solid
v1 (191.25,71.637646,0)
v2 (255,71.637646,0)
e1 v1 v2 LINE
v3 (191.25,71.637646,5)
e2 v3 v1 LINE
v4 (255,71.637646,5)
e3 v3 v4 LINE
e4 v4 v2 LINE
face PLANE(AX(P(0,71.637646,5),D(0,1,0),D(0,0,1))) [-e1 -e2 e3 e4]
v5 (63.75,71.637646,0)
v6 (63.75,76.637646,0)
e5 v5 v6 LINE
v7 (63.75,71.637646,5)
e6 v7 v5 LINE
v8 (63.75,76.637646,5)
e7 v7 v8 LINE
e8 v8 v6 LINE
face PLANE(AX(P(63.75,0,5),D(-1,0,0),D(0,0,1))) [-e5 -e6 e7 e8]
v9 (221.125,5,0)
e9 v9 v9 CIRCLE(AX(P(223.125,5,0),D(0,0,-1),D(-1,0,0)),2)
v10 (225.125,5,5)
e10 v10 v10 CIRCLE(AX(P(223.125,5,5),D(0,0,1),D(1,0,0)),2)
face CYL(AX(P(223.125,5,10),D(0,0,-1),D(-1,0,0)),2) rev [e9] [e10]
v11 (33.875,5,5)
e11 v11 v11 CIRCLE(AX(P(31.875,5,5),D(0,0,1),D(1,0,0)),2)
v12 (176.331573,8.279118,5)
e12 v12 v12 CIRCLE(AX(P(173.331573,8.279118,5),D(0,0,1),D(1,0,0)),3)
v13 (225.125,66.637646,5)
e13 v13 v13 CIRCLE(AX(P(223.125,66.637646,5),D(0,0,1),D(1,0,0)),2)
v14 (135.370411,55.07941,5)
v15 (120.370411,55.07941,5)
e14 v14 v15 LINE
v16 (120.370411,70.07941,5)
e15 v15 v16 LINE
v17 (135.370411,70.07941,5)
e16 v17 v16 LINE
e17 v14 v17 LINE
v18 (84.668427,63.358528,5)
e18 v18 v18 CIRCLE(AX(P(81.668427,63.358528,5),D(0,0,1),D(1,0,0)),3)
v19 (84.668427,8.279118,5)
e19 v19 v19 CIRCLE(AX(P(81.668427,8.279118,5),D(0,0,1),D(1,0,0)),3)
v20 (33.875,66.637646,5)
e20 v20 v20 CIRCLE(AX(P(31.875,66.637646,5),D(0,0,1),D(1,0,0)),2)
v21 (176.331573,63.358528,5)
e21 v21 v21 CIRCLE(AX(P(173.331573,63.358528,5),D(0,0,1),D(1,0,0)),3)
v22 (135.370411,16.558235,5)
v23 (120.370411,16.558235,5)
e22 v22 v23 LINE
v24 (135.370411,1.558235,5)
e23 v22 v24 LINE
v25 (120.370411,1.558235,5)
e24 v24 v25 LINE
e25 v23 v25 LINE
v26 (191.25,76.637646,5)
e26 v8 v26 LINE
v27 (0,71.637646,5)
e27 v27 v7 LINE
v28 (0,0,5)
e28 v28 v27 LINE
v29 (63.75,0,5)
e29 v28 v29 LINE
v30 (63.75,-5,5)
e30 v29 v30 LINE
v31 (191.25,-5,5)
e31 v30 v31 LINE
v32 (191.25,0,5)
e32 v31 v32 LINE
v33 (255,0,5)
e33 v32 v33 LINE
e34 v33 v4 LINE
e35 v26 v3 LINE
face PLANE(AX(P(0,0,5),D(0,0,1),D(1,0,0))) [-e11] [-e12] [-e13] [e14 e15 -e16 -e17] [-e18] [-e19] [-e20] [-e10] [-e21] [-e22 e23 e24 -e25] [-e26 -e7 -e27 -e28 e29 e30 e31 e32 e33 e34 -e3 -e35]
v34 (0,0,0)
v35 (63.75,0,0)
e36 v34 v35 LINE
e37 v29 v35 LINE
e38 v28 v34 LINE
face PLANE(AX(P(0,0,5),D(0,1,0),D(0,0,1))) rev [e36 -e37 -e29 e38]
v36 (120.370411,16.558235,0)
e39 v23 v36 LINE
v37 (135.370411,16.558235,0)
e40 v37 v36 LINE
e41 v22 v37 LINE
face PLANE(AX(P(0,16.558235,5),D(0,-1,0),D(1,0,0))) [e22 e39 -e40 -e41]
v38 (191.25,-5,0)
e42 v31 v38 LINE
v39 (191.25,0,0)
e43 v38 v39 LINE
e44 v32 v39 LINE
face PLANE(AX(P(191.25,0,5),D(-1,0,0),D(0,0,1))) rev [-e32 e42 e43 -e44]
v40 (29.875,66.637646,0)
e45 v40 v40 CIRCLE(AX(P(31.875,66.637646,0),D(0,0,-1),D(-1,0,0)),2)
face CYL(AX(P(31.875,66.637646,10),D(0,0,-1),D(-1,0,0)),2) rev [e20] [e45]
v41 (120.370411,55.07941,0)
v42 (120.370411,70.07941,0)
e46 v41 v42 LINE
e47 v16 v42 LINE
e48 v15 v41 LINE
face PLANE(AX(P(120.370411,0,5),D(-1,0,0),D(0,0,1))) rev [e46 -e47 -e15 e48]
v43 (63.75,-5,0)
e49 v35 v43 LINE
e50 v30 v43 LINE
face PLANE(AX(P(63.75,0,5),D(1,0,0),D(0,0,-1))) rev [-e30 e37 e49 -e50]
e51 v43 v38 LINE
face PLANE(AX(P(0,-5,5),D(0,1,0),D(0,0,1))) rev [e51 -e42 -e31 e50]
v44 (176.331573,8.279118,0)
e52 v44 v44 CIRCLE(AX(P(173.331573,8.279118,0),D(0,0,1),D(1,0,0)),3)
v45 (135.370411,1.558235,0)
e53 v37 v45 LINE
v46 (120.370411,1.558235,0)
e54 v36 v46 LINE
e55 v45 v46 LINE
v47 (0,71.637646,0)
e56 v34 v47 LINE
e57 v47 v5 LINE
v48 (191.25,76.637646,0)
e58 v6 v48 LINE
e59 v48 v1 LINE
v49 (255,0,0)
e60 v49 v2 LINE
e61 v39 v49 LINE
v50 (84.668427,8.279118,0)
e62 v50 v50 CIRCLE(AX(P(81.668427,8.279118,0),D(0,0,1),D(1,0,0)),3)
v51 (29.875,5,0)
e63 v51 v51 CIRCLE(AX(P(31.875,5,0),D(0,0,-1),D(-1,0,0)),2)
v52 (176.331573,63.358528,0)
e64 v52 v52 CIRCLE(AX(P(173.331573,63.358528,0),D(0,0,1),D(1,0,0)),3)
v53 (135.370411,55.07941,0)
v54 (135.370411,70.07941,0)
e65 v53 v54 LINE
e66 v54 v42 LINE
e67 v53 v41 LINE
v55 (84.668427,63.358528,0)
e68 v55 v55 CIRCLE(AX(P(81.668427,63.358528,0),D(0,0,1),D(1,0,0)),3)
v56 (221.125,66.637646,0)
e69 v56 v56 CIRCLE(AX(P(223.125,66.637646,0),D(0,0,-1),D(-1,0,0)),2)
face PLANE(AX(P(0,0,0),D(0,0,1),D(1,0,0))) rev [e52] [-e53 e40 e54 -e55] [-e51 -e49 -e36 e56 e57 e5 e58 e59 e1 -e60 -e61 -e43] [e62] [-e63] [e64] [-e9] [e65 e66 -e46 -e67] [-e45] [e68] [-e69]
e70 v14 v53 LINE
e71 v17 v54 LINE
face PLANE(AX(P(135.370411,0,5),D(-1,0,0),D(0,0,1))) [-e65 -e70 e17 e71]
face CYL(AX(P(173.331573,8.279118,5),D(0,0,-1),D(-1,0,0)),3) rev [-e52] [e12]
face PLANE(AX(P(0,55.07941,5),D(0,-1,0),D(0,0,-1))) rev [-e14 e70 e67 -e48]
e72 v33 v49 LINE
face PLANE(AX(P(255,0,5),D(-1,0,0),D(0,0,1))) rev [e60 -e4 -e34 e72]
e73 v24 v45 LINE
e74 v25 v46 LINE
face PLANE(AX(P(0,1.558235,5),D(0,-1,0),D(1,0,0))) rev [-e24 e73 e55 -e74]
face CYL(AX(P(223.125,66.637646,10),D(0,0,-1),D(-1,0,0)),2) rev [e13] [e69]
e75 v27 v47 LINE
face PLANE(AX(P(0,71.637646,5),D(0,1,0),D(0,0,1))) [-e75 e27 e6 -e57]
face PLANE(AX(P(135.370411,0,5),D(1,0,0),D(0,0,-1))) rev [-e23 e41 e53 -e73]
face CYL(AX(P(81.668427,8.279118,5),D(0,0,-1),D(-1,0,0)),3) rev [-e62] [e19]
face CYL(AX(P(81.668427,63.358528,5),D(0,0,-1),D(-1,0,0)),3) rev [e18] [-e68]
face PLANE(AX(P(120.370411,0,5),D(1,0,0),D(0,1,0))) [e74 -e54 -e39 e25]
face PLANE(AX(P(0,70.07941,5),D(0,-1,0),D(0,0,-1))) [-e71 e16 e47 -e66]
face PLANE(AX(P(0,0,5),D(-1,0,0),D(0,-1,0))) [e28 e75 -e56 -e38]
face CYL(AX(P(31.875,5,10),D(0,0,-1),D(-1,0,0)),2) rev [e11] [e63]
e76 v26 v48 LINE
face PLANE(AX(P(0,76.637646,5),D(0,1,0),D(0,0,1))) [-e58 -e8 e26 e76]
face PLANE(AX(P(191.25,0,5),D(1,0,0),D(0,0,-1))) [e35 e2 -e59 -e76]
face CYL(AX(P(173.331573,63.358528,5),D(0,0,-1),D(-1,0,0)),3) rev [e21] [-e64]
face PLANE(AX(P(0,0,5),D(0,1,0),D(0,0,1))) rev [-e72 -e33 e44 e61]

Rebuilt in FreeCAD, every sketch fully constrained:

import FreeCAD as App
import Part
import Sketcher
from FreeCAD import Vector

doc = App.newDocument("Part")
body = doc.addObject("PartDesign::Body", "Body")

sketch1 = doc.addObject("Sketcher::SketchObject", "Sketch")
body.addObject(sketch1)
sketch1.AttachmentSupport = (doc.XY_Plane, [""])
sketch1.MapMode = "FlatFace"
sketch1.addGeometry([
    Part.LineSegment(Vector(255, 71.6, 0), Vector(191.2, 71.6, 0)),
    Part.LineSegment(Vector(191.2, 71.6, 0), Vector(191.2, 76.6, 0)),
    Part.LineSegment(Vector(191.2, 76.6, 0), Vector(63.8, 76.6, 0)),
    Part.LineSegment(Vector(63.8, 76.6, 0), Vector(63.8, 71.6, 0)),
    Part.LineSegment(Vector(63.8, 71.6, 0), Vector(0, 71.6, 0)),
    Part.LineSegment(Vector(0, 71.6, 0), Vector(0, 0, 0)),
    Part.LineSegment(Vector(0, 0, 0), Vector(63.8, 0, 0)),
    Part.LineSegment(Vector(63.8, 0, 0), Vector(63.8, -5, 0)),
    Part.LineSegment(Vector(63.8, -5, 0), Vector(191.2, -5, 0)),
    Part.LineSegment(Vector(191.2, -5, 0), Vector(191.2, 0, 0)),
    Part.LineSegment(Vector(191.2, 0, 0), Vector(255, 0, 0)),
    Part.LineSegment(Vector(255, 0, 0), Vector(255, 71.6, 0)),
    Part.Circle(Vector(173.3, 8.3, 0), Vector(0, 0, 1), 3),
    Part.LineSegment(Vector(120.4, 1.6, 0), Vector(120.4, 16.6, 0)),
    Part.LineSegment(Vector(120.4, 16.6, 0), Vector(135.4, 16.6, 0)),
    Part.LineSegment(Vector(135.4, 16.6, 0), Vector(135.4, 1.6, 0)),
    Part.LineSegment(Vector(135.4, 1.6, 0), Vector(120.4, 1.6, 0)),
    Part.Circle(Vector(81.7, 8.3, 0), Vector(0, 0, 1), 3),
    Part.Circle(Vector(173.3, 63.4, 0), Vector(0, 0, 1), 3),
    Part.LineSegment(Vector(120.4, 55.1, 0), Vector(120.4, 70.1, 0)),
    Part.LineSegment(Vector(120.4, 70.1, 0), Vector(135.4, 70.1, 0)),
    Part.LineSegment(Vector(135.4, 70.1, 0), Vector(135.4, 55.1, 0)),
    Part.LineSegment(Vector(135.4, 55.1, 0), Vector(120.4, 55.1, 0)),
    Part.Circle(Vector(81.7, 63.4, 0), Vector(0, 0, 1), 3),
], False)
sketch1.addConstraint([
    Sketcher.Constraint("Coincident", 0, 2, 1, 1),
    Sketcher.Constraint("Coincident", 1, 2, 2, 1),
    Sketcher.Constraint("Coincident", 2, 2, 3, 1),
    Sketcher.Constraint("Coincident", 3, 2, 4, 1),
    Sketcher.Constraint("Coincident", 4, 2, 5, 1),
    Sketcher.Constraint("Coincident", 5, 2, 6, 1),
    Sketcher.Constraint("Coincident", 6, 2, 7, 1),
    Sketcher.Constraint("Coincident", 7, 2, 8, 1),
    Sketcher.Constraint("Coincident", 8, 2, 9, 1),
    Sketcher.Constraint("Coincident", 9, 2, 10, 1),
    Sketcher.Constraint("Coincident", 10, 2, 11, 1),
    Sketcher.Constraint("Coincident", 11, 2, 0, 1),
    Sketcher.Constraint("Coincident", 13, 2, 14, 1),
    Sketcher.Constraint("Coincident", 14, 2, 15, 1),
    Sketcher.Constraint("Coincident", 15, 2, 16, 1),
    Sketcher.Constraint("Coincident", 16, 2, 13, 1),
    Sketcher.Constraint("Coincident", 19, 2, 20, 1),
    Sketcher.Constraint("Coincident", 20, 2, 21, 1),
    Sketcher.Constraint("Coincident", 21, 2, 22, 1),
    Sketcher.Constraint("Coincident", 22, 2, 19, 1),
    Sketcher.Constraint("Horizontal", 0),
    Sketcher.Constraint("Vertical", 1),
    Sketcher.Constraint("Horizontal", 2),
    Sketcher.Constraint("Vertical", 3),
    Sketcher.Constraint("Horizontal", 4),
    Sketcher.Constraint("Vertical", 5),
    Sketcher.Constraint("Horizontal", 6),
    Sketcher.Constraint("Vertical", 7),
    Sketcher.Constraint("Horizontal", 8),
    Sketcher.Constraint("Vertical", 9),
    Sketcher.Constraint("Horizontal", 10),
    Sketcher.Constraint("Vertical", 11),
    Sketcher.Constraint("Vertical", 13),
    Sketcher.Constraint("Horizontal", 14),
    Sketcher.Constraint("Vertical", 15),
    Sketcher.Constraint("Horizontal", 16),
    Sketcher.Constraint("Vertical", 19),
    Sketcher.Constraint("Horizontal", 20),
    Sketcher.Constraint("Vertical", 21),
    Sketcher.Constraint("Horizontal", 22),
    Sketcher.Constraint("Coincident", 5, 2, -1, 1),
    Sketcher.Constraint("Equal", 12, 17),
    Sketcher.Constraint("Equal", 17, 18),
    Sketcher.Constraint("Equal", 18, 23),
    Sketcher.Constraint("PointOnObject", 9, 2, -1),
    Sketcher.Constraint("Horizontal", 12, 3, 17, 3),
    Sketcher.Constraint("Horizontal", 18, 3, 23, 3),
    Sketcher.Constraint("Horizontal", 0, 2, 3, 2),
    Sketcher.Constraint("Vertical", 12, 3, 18, 3),
    Sketcher.Constraint("Vertical", 17, 3, 23, 3),
    Sketcher.Constraint("Vertical", 3, 2, 6, 2),
    Sketcher.Constraint("Vertical", 1, 2, 8, 2),
    Sketcher.Constraint("Vertical", 16, 2, 19, 2),
    Sketcher.Constraint("Vertical", 15, 2, 20, 2),
    Sketcher.Constraint("Equal", 0, 4),
    Sketcher.Constraint("Equal", 3, 7),
    Sketcher.Constraint("Equal", 22, 13),
    Sketcher.Constraint("Equal", 15, 19),
    Sketcher.Constraint("Diameter", 12, 6.0),
    Sketcher.Constraint("DistanceX", 14, 1, 14, 2, 15.0),
    Sketcher.Constraint("DistanceY", 1, 1, 1, 2, 5.0),
    Sketcher.Constraint("DistanceX", 2, 2, 2, 1, 127.5),
    Sketcher.Constraint("DistanceX", -1, 1, 10, 2, 255.0),
    Sketcher.Constraint("DistanceY", 5, 2, 5, 1, 71.637646),
    Sketcher.Constraint("DistanceX", -1, 1, 13, 2, 120.370411),
    Sketcher.Constraint("DistanceY", -1, 1, 19, 2, 70.07941),
    Sketcher.Constraint("DistanceY", 12, 3, 18, 3, 55.07941),
    Sketcher.Constraint("DistanceX", 13, 2, 12, 3, 52.961162),
    Sketcher.Constraint("DistanceY", -1, 1, 12, 3, 8.279118),
    Sketcher.Constraint("DistanceX", -1, 1, 17, 3, 81.668427),
    Sketcher.Constraint("DistanceY", -1, 1, 13, 2, 16.558235),
])
pad1 = doc.addObject("PartDesign::Pad", "Pad")
body.addObject(pad1)
pad1.Profile = sketch1
pad1.Length = 5

sketch2 = doc.addObject("Sketcher::SketchObject", "Sketch001")
body.addObject(sketch2)
sketch2.AttachmentSupport = (doc.XY_Plane, [""])
sketch2.MapMode = "FlatFace"
sketch2.addGeometry([
    Part.Circle(Vector(31.9, 5, 0), Vector(0, 0, 1), 1.5),
    Part.Circle(Vector(31.9, 66.6, 0), Vector(0, 0, 1), 1.5),
    Part.Circle(Vector(223.1, 66.6, 0), Vector(0, 0, 1), 1.5),
    Part.Circle(Vector(223.1, 5, 0), Vector(0, 0, 1), 1.5),
], False)
sketch2.addConstraint([
    Sketcher.Constraint("Equal", 0, 1),
    Sketcher.Constraint("Equal", 1, 2),
    Sketcher.Constraint("Equal", 2, 3),
    Sketcher.Constraint("Horizontal", 1, 3, 2, 3),
    Sketcher.Constraint("Horizontal", 0, 3, 3, 3),
    Sketcher.Constraint("Vertical", 0, 3, 1, 3),
    Sketcher.Constraint("Vertical", 2, 3, 3, 3),
    Sketcher.Constraint("Diameter", 0, 3.0),
    Sketcher.Constraint("DistanceY", -1, 1, 0, 3, 5.0),
    Sketcher.Constraint("DistanceX", 1, 3, 2, 3, 191.25),
    Sketcher.Constraint("DistanceX", -1, 1, 0, 3, 31.875),
    Sketcher.Constraint("DistanceY", -1, 1, 1, 3, 66.637646),
])
pocket1 = doc.addObject("PartDesign::Pocket", "Pocket")
body.addObject(pocket1)
pocket1.Profile = sketch2
pocket1.Length = 185
pocket1.Reversed = True

sketch3 = doc.addObject("Sketcher::SketchObject", "Sketch002")
body.addObject(sketch3)
sketch3.AttachmentSupport = (doc.XY_Plane, [""])
sketch3.MapMode = "FlatFace"
sketch3.addGeometry([
    Part.Circle(Vector(31.9, 5, 0), Vector(0, 0, 1), 2),
    Part.Circle(Vector(31.9, 66.6, 0), Vector(0, 0, 1), 2),
    Part.Circle(Vector(223.1, 5, 0), Vector(0, 0, 1), 2),
    Part.Circle(Vector(223.1, 66.6, 0), Vector(0, 0, 1), 2),
], False)
sketch3.addConstraint([
    Sketcher.Constraint("Equal", 0, 1),
    Sketcher.Constraint("Equal", 1, 2),
    Sketcher.Constraint("Equal", 2, 3),
    Sketcher.Constraint("Horizontal", 0, 3, 2, 3),
    Sketcher.Constraint("Horizontal", 1, 3, 3, 3),
    Sketcher.Constraint("Vertical", 0, 3, 1, 3),
    Sketcher.Constraint("Vertical", 2, 3, 3, 3),
    Sketcher.Constraint("Diameter", 0, 4.0),
    Sketcher.Constraint("DistanceY", -1, 1, 0, 3, 5.0),
    Sketcher.Constraint("DistanceX", 0, 3, 2, 3, 191.25),
    Sketcher.Constraint("DistanceX", -1, 1, 0, 3, 31.875),
    Sketcher.Constraint("DistanceY", -1, 1, 1, 3, 66.637646),
])
pocket2 = doc.addObject("PartDesign::Pocket", "Pocket001")
body.addObject(pocket2)
pocket2.Profile = sketch3
pocket2.Length = 10
pocket2.Reversed = True

doc.recompute()
